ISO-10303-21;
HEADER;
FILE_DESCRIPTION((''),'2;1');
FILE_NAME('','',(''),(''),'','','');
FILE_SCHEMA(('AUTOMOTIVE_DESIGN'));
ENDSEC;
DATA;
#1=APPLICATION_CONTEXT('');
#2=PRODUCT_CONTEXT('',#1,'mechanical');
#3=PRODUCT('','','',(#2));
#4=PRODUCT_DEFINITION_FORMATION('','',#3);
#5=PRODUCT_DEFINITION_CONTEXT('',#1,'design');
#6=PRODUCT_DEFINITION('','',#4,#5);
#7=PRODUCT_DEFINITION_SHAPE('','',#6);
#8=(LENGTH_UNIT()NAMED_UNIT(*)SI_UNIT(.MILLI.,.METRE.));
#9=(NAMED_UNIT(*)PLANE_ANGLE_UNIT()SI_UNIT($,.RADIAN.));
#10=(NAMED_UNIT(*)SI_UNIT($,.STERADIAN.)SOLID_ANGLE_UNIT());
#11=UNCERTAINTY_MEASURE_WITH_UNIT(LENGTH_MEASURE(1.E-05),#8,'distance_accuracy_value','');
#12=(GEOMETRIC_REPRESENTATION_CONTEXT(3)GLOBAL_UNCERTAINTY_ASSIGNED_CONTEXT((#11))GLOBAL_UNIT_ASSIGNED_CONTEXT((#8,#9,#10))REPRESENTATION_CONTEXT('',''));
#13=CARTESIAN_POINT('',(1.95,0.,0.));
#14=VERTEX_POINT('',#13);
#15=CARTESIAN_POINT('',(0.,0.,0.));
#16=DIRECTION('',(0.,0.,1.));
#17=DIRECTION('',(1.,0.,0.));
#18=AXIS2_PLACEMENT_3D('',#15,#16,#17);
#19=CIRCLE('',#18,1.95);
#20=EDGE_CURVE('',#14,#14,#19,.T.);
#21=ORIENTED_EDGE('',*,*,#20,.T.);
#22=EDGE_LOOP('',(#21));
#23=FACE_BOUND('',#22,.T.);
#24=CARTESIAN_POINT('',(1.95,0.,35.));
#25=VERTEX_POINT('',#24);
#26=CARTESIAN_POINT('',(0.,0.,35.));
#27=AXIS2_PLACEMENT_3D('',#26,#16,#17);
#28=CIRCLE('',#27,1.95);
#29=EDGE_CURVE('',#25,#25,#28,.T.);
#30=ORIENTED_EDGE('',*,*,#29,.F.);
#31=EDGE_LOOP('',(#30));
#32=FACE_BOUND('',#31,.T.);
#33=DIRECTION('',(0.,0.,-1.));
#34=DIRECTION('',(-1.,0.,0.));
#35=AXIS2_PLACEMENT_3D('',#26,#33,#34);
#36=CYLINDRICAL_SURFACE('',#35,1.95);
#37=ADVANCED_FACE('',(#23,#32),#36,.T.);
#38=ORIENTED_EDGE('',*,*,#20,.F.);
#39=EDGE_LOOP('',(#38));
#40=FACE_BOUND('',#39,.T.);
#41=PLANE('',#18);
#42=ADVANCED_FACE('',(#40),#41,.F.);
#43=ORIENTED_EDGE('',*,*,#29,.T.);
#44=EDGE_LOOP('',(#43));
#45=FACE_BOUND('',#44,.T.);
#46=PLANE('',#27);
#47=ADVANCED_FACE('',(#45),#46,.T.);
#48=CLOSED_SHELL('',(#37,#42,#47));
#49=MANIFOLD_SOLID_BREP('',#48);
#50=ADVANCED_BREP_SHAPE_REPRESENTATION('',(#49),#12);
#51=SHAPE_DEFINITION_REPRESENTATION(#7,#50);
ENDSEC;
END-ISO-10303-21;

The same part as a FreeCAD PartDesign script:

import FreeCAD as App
import Part
import Sketcher
from FreeCAD import Vector

doc = App.newDocument("Part")
params = doc.addObject("Spreadsheet::Sheet", "Params")
for row, (alias, value) in enumerate([
    ("sketch1_diameter", "3.9 mm"),
    ("pad1_length", "35 mm"),
], start=1):
    params.set(f"A{row}", alias)
    params.set(f"B{row}", "=" + value)
    params.setAlias(f"B{row}", alias)

body = doc.addObject("PartDesign::Body", "Body")

sketch1 = body.newObject("Sketcher::SketchObject", "Sketch")
sketch1.AttachmentSupport = (doc.getObject("XY_Plane"), [""])
sketch1.MapMode = "FlatFace"
sketch1.addGeometry(Part.Circle(Vector(0, 0, 0), Vector(0, 0, 1), 1.95), False)
sketch1.addConstraint([
    Sketcher.Constraint("Coincident", 0, 3, -1, 1),
    Sketcher.Constraint("Diameter", 0, 3.9),
])
sketch1.setExpression("Constraints[1]", "Params.sketch1_diameter")
pad1 = body.newObject("PartDesign::Pad", "Pad")
pad1.Profile = sketch1
pad1.setExpression("Length", "Params.pad1_length")

doc.recompute()
